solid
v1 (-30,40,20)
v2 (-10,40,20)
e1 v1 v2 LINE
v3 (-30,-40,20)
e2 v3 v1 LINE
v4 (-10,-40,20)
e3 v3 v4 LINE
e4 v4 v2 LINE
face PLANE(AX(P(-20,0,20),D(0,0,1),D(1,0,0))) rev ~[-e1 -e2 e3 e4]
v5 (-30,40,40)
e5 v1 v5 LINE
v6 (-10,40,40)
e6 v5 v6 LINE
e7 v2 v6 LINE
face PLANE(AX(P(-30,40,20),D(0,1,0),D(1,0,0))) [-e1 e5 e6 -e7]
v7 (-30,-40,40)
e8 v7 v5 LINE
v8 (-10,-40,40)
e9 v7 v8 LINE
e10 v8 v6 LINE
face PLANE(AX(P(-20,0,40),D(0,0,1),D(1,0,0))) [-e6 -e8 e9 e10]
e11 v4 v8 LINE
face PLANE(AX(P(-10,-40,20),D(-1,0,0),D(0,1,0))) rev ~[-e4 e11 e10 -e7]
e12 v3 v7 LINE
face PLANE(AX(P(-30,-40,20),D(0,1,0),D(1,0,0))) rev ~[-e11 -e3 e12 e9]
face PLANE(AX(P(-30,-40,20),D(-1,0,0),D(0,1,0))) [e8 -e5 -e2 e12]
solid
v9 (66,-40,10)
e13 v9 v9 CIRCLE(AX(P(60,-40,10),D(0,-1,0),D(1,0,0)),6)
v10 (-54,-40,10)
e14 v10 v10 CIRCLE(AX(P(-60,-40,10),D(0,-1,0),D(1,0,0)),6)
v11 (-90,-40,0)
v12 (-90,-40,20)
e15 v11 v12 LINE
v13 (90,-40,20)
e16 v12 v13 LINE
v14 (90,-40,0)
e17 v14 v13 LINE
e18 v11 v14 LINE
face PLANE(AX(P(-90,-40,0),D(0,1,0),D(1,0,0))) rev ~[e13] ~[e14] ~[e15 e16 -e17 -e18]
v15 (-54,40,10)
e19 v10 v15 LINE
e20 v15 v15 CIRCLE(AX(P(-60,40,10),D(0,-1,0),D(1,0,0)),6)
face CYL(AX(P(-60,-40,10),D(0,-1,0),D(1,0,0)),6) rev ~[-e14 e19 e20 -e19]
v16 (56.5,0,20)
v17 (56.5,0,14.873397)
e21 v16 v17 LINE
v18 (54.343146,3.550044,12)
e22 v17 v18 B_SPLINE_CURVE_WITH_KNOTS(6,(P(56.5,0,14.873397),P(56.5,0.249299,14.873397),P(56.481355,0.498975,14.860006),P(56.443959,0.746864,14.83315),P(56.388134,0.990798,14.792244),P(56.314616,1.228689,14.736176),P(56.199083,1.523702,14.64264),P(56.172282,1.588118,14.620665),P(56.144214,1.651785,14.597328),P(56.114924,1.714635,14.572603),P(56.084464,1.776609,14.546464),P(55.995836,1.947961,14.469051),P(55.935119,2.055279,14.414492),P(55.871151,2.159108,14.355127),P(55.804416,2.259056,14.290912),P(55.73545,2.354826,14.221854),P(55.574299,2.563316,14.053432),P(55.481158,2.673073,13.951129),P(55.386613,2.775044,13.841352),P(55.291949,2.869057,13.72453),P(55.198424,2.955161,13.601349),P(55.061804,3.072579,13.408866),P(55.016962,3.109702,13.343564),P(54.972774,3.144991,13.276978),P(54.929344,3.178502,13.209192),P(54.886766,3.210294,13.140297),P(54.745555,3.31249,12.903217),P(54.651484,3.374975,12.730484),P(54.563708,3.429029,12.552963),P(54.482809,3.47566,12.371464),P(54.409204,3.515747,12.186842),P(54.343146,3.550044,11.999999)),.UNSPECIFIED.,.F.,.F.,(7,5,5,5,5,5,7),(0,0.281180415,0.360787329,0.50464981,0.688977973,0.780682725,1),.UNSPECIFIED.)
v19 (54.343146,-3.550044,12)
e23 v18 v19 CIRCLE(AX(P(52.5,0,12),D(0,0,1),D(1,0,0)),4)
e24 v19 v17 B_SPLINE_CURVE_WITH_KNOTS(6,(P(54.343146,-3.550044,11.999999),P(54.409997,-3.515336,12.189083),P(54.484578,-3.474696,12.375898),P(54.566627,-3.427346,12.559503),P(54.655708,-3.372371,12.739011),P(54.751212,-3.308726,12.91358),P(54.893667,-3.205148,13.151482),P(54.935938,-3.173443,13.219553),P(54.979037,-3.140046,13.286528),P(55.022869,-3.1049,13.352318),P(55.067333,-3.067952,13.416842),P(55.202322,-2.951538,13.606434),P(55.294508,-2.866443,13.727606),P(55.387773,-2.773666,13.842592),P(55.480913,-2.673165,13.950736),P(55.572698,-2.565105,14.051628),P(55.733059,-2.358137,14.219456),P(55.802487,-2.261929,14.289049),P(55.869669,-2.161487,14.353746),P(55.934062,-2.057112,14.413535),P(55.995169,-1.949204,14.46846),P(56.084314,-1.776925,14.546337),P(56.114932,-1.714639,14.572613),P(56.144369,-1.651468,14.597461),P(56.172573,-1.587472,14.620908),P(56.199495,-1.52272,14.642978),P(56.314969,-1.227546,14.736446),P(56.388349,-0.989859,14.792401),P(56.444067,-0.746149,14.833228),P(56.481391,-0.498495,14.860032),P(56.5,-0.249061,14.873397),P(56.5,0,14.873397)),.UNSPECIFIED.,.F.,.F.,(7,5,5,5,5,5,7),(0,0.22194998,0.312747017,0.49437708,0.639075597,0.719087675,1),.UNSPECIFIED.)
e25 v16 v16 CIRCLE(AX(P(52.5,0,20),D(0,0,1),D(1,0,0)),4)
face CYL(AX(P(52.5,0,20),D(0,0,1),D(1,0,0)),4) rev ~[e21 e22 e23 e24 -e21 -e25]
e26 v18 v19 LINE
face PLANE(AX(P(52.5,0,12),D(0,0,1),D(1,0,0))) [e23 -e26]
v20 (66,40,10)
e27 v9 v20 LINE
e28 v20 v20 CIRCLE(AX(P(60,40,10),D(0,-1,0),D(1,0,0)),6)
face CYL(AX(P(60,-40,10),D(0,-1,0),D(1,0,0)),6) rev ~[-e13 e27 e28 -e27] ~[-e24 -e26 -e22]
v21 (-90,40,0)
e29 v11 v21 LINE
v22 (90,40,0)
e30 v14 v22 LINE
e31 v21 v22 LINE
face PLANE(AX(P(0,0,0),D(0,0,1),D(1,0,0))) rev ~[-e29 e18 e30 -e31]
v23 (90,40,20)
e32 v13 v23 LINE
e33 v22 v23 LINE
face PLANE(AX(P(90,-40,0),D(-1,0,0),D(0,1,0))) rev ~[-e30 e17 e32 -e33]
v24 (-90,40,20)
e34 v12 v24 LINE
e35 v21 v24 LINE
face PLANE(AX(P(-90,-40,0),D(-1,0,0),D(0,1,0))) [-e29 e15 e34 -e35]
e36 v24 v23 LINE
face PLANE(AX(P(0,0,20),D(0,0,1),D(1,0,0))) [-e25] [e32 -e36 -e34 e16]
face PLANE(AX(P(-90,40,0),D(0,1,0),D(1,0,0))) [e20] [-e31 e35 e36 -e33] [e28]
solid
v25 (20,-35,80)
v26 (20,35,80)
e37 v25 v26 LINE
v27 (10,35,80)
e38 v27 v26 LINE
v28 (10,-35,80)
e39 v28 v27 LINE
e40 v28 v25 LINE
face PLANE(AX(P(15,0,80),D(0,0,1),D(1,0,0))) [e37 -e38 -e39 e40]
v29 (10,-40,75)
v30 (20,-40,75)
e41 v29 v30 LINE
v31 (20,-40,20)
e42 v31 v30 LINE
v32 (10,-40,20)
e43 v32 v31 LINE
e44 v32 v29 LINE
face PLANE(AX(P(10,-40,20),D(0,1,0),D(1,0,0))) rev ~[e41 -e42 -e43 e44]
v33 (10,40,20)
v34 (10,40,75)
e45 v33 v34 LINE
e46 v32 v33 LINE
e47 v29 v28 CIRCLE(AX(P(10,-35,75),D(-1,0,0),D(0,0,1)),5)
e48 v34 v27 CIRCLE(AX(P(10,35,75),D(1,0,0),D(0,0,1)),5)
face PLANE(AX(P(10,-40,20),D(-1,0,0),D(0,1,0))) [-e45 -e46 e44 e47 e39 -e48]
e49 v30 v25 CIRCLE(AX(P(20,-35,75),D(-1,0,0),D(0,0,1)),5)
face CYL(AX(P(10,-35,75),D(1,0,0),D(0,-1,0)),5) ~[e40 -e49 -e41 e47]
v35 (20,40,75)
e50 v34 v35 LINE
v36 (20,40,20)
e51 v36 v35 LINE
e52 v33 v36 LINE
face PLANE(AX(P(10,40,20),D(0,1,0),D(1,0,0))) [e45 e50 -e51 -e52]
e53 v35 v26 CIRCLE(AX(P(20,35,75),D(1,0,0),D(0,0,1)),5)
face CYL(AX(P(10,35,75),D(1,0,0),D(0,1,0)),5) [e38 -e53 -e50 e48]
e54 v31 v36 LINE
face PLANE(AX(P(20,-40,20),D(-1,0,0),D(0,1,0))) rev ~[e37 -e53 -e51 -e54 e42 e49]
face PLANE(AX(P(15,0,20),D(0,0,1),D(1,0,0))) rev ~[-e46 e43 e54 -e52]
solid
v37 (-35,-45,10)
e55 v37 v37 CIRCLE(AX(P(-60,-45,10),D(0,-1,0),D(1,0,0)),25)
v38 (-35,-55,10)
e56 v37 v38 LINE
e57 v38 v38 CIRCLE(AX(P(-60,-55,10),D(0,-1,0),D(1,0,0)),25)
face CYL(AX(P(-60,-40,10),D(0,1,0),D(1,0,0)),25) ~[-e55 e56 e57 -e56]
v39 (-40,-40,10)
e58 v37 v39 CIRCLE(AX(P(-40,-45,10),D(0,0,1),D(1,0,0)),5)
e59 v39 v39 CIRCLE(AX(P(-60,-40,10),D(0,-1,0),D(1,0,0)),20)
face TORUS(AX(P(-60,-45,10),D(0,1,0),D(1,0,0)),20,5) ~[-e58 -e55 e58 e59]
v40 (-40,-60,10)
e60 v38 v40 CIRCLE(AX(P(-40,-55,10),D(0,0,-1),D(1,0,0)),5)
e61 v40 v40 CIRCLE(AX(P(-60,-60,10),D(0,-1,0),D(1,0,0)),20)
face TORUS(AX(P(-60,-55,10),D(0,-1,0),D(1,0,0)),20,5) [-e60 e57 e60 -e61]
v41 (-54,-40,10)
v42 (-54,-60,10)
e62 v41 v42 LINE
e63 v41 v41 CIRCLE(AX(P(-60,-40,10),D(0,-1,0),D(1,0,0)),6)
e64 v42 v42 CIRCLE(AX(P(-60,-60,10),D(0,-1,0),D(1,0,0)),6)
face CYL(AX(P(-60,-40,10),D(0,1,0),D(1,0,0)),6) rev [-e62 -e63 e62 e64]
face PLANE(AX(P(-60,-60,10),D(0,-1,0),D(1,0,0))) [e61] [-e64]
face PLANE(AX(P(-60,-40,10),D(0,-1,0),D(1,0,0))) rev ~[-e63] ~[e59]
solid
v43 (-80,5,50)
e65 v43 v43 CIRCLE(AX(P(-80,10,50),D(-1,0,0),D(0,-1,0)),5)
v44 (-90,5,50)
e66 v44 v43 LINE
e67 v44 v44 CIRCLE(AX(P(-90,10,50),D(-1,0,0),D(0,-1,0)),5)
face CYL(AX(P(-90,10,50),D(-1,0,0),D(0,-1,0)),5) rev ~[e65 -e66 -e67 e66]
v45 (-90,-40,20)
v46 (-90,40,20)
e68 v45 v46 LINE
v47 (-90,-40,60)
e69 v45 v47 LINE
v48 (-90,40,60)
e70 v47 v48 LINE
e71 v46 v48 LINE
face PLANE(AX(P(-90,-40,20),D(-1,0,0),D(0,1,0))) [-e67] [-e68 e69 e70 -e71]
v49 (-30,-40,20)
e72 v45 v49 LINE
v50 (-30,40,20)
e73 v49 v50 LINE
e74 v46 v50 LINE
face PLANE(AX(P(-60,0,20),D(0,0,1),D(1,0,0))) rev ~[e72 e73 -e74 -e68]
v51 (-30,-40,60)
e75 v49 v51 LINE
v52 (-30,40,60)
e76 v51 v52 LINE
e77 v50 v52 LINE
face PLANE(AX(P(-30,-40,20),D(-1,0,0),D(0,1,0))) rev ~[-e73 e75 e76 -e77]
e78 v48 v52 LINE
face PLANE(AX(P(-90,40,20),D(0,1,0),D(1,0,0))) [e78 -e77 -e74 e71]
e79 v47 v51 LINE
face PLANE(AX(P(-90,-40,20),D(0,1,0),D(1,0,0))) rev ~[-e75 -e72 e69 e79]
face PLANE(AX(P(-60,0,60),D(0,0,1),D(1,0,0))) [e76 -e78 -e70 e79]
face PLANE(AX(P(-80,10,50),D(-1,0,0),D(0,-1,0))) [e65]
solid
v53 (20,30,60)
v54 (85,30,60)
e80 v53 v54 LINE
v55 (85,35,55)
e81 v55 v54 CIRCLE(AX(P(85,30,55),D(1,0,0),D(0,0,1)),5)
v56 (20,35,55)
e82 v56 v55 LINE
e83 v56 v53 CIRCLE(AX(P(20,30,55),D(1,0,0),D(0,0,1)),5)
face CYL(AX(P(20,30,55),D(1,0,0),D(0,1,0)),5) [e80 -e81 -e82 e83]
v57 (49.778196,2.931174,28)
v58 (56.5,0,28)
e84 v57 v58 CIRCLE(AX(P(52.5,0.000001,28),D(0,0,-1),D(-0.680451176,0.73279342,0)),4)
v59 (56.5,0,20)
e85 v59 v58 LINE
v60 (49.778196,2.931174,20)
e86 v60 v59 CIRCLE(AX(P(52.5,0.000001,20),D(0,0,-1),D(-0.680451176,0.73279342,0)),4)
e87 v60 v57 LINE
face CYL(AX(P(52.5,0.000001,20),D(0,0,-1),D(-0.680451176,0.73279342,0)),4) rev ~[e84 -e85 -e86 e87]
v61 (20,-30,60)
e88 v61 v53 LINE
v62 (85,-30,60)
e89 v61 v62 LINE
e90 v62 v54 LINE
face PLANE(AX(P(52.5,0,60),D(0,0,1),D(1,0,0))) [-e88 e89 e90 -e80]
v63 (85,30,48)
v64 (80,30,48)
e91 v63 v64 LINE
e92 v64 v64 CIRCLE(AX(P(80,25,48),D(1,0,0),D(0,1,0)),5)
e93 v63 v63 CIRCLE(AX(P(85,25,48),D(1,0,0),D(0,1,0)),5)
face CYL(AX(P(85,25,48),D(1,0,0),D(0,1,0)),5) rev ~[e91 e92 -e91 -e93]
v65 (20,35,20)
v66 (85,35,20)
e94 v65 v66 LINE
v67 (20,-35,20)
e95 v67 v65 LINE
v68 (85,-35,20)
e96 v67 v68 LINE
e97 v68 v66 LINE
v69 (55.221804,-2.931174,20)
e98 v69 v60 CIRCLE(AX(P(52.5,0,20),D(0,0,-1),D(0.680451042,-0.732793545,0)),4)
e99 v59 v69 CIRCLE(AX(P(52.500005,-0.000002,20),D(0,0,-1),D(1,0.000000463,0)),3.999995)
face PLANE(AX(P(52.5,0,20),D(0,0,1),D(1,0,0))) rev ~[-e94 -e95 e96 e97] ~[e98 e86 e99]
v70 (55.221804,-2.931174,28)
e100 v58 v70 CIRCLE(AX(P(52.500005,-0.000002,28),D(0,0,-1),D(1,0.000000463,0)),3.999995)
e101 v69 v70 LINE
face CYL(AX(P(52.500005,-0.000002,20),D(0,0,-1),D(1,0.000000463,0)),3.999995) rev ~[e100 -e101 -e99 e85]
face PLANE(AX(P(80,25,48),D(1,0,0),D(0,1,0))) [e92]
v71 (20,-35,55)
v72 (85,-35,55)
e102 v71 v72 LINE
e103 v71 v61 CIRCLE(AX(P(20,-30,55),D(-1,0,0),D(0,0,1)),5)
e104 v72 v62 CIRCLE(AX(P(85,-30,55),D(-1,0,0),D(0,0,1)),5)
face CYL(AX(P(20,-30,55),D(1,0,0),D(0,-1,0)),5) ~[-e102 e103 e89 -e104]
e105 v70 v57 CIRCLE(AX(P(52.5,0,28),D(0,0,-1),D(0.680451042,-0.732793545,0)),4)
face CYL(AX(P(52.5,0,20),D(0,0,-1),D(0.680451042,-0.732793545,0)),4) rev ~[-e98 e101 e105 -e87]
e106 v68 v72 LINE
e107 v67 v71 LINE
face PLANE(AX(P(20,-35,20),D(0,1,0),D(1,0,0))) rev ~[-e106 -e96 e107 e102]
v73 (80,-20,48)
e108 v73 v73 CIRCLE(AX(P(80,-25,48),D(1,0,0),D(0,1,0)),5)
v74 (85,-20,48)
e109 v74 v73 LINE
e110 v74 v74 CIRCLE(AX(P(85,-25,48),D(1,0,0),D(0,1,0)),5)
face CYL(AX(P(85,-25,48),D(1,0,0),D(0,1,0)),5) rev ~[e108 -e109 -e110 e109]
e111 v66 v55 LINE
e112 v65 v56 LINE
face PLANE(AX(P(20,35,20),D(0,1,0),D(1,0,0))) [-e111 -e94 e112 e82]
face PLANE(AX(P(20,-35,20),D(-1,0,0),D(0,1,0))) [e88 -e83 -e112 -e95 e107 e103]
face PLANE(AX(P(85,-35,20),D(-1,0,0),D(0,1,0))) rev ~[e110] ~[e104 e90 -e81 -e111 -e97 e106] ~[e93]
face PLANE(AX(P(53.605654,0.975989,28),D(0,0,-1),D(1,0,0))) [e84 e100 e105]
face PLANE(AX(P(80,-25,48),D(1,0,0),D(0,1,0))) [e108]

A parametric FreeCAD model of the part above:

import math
import FreeCAD as App
import Part
import Sketcher

V = App.Vector
Q = App.Units.Quantity


def edges_at(feature, points):
    """Names of the edges that pass closest to the given points."""
    edges = feature.Shape.Edges
    near = lambda p: min(range(len(edges)), key=lambda i: edges[i].distToShape(Part.Vertex(*p))[0])
    return sorted({f"Edge{near(p) + 1}" for p in points})


def add_polygon(sketch, points):
    """Adds a closed chain of lines whose ends are joined by coincident constraints."""
    first, n = sketch.GeometryCount, len(points)
    for a, b in zip(points, points[1:] + points[:1]):
        sketch.addGeometry(Part.LineSegment(App.Vector(*a, 0), App.Vector(*b, 0)), False)
    for i in range(n):
        sketch.addConstraint(Sketcher.Constraint("Coincident", first + i, 2, first + (i + 1) % n, 1))

doc = App.newDocument("Part")
body = doc.addObject("PartDesign::Body", "Body")

sketch1 = body.newObject("Sketcher::SketchObject", "Sketch")
sketch1.AttachmentSupport = (doc.getObject("XY_Plane"), [""])
sketch1.MapMode = "FlatFace"
add_polygon(sketch1, [(-90, 40), (-90, -40), (90, -40), (90, 40)])
sketch1.addConstraint(Sketcher.Constraint("Vertical", 0))
sketch1.addConstraint(Sketcher.Constraint("Horizontal", 1))
sketch1.addConstraint(Sketcher.Constraint("Vertical", 2))
sketch1.addConstraint(Sketcher.Constraint("Horizontal", 3))
sketch1.addConstraint(Sketcher.Constraint("Symmetric", 0, 2, 2, 2, -1, 1))
sketch1.addConstraint(Sketcher.Constraint("DistanceX", 1, 1, 1, 2, Q("180 mm")))
sketch1.addConstraint(Sketcher.Constraint("DistanceY", 0, 2, 0, 1, Q("80 mm")))
pad1 = body.newObject("PartDesign::Pad", "Pad")
pad1.Profile = sketch1
pad1.Length = 20

sketch2 = body.newObject("Sketcher::SketchObject", "Sketch001")
sketch2.AttachmentSupport = (doc.getObject("XZ_Plane"), [""])
sketch2.MapMode = "FlatFace"
sketch2.AttachmentOffset = App.Placement(V(0, 0, 40), App.Rotation())
sketch2.addGeometry(Part.Circle(V(-60, 10, 0), V(0, 0, 1), 6), False)
sketch2.addGeometry(Part.Circle(V(60, 10, 0), V(0, 0, 1), 6), False)
sketch2.addConstraint(Sketcher.Constraint("Equal", 0, 1))
sketch2.addConstraint(Sketcher.Constraint("Symmetric", 0, 3, 1, 3, -2))
sketch2.addConstraint(Sketcher.Constraint("Diameter", 0, Q("12 mm")))
sketch2.addConstraint(Sketcher.Constraint("DistanceX", 0, 3, -1, 1, Q("60 mm")))
sketch2.addConstraint(Sketcher.Constraint("DistanceY", -1, 1, 0, 3, Q("10 mm")))
pocket1 = body.newObject("PartDesign::Pocket", "Pocket")
pocket1.Profile = sketch2
pocket1.Type = "ThroughAll"

sketch3 = body.newObject("Sketcher::SketchObject", "Sketch002")
sketch3.AttachmentSupport = (doc.getObject("XY_Plane"), [""])
sketch3.MapMode = "FlatFace"
sketch3.AttachmentOffset = App.Placement(V(0, 0, 20), App.Rotation())
sketch3.addGeometry(Part.Circle(V(52.5, 0, 0), V(0, 0, 1), 4), False)
sketch3.addConstraint(Sketcher.Constraint("PointOnObject", 0, 3, -1))
sketch3.addConstraint(Sketcher.Constraint("Diameter", 0, Q("8 mm")))
sketch3.addConstraint(Sketcher.Constraint("DistanceX", -1, 1, 0, 3, Q("52.5 mm")))
pocket2 = body.newObject("PartDesign::Pocket", "Pocket001")
pocket2.Profile = sketch3
pocket2.Length = 8
body2 = doc.addObject("PartDesign::Body", "Body001")

sketch4 = body2.newObject("Sketcher::SketchObject", "Sketch003")
sketch4.AttachmentSupport = (doc.getObject("XY_Plane001"), [""])
sketch4.MapMode = "FlatFace"
sketch4.AttachmentOffset = App.Placement(V(0, 0, 20), App.Rotation())
add_polygon(sketch4, [(-90, 40), (-90, -40), (-30, -40), (-30, 40)])
sketch4.addConstraint(Sketcher.Constraint("Vertical", 0))
sketch4.addConstraint(Sketcher.Constraint("Horizontal", 1))
sketch4.addConstraint(Sketcher.Constraint("Vertical", 2))
sketch4.addConstraint(Sketcher.Constraint("Horizontal", 3))
sketch4.addConstraint(Sketcher.Constraint("DistanceX", 1, 1, 1, 2, Q("60 mm")))
sketch4.addConstraint(Sketcher.Constraint("DistanceY", 0, 2, 0, 1, Q("80 mm")))
sketch4.addConstraint(Sketcher.Constraint("DistanceX", 0, 2, -1, 1, Q("90 mm")))
sketch4.addConstraint(Sketcher.Constraint("DistanceY", 0, 2, -1, 1, Q("40 mm")))
pad2 = body2.newObject("PartDesign::Pad", "Pad001")
pad2.Profile = sketch4
pad2.Length = 40

sketch5 = body2.newObject("Sketcher::SketchObject", "Sketch004")
sketch5.AttachmentSupport = (doc.getObject("YZ_Plane001"), [""])
sketch5.MapMode = "FlatFace"
sketch5.AttachmentOffset = App.Placement(V(0, 0, -90), App.Rotation())
sketch5.addGeometry(Part.Circle(V(10, 50, 0), V(0, 0, 1), 5), False)
sketch5.addConstraint(Sketcher.Constraint("Diameter", 0, Q("10 mm")))
sketch5.addConstraint(Sketcher.Constraint("DistanceX", -1, 1, 0, 3, Q("10 mm")))
sketch5.addConstraint(Sketcher.Constraint("DistanceY", -1, 1, 0, 3, Q("50 mm")))
pocket3 = body2.newObject("PartDesign::Pocket", "Pocket002")
pocket3.Profile = sketch5
pocket3.Length = 10
pocket3.Reversed = True
body3 = doc.addObject("PartDesign::Body", "Body002")

sketch6 = body3.newObject("Sketcher::SketchObject", "Sketch005")
sketch6.AttachmentSupport = (doc.getObject("XY_Plane002"), [""])
sketch6.MapMode = "FlatFace"
sketch6.AttachmentOffset = App.Placement(V(0, 0, 20), App.Rotation())
add_polygon(sketch6, [(-30, 40), (-30, -40), (-10, -40), (-10, 40)])
sketch6.addConstraint(Sketcher.Constraint("Vertical", 0))
sketch6.addConstraint(Sketcher.Constraint("Horizontal", 1))
sketch6.addConstraint(Sketcher.Constraint("Vertical", 2))
sketch6.addConstraint(Sketcher.Constraint("Horizontal", 3))
sketch6.addConstraint(Sketcher.Constraint("DistanceX", 1, 1, 1, 2, Q("20 mm")))
sketch6.addConstraint(Sketcher.Constraint("DistanceY", 0, 2, 0, 1, Q("80 mm")))
sketch6.addConstraint(Sketcher.Constraint("DistanceX", 0, 2, -1, 1, Q("30 mm")))
sketch6.addConstraint(Sketcher.Constraint("DistanceY", 0, 2, -1, 1, Q("40 mm")))
pad3 = body3.newObject("PartDesign::Pad", "Pad002")
pad3.Profile = sketch6
pad3.Length = 20
body4 = doc.addObject("PartDesign::Body", "Body003")

sketch7 = body4.newObject("Sketcher::SketchObject", "Sketch006")
sketch7.AttachmentSupport = (doc.getObject("XY_Plane003"), [""])
sketch7.MapMode = "FlatFace"
sketch7.AttachmentOffset = App.Placement(V(0, 0, 20), App.Rotation())
add_polygon(sketch7, [(20, 35), (20, -35), (85, -35), (85, 35)])
sketch7.addConstraint(Sketcher.Constraint("Vertical", 0))
sketch7.addConstraint(Sketcher.Constraint("Horizontal", 1))
sketch7.addConstraint(Sketcher.Constraint("Vertical", 2))
sketch7.addConstraint(Sketcher.Constraint("Horizontal", 3))
sketch7.addConstraint(Sketcher.Constraint("DistanceX", 1, 1, 1, 2, Q("65 mm")))
sketch7.addConstraint(Sketcher.Constraint("DistanceY", 0, 2, 0, 1, Q("70 mm")))
sketch7.addConstraint(Sketcher.Constraint("DistanceX", -1, 1, 0, 2, Q("20 mm")))
sketch7.addConstraint(Sketcher.Constraint("DistanceY", 0, 2, -1, 1, Q("35 mm")))
pad4 = body4.newObject("PartDesign::Pad", "Pad003")
pad4.Profile = sketch7
pad4.Length = 40

sketch8 = body4.newObject("Sketcher::SketchObject", "Sketch007")
sketch8.AttachmentSupport = (doc.getObject("YZ_Plane003"), [""])
sketch8.MapMode = "FlatFace"
sketch8.AttachmentOffset = App.Placement(V(0, 0, 85), App.Rotation())
sketch8.addGeometry(Part.Circle(V(-25, 48, 0), V(0, 0, 1), 5), False)
sketch8.addGeometry(Part.Circle(V(25, 48, 0), V(0, 0, 1), 5), False)
sketch8.addConstraint(Sketcher.Constraint("Equal", 0, 1))
sketch8.addConstraint(Sketcher.Constraint("Symmetric", 0, 3, 1, 3, -2))
sketch8.addConstraint(Sketcher.Constraint("Diameter", 0, Q("10 mm")))
sketch8.addConstraint(Sketcher.Constraint("DistanceX", 0, 3, -1, 1, Q("25 mm")))
sketch8.addConstraint(Sketcher.Constraint("DistanceY", -1, 1, 0, 3, Q("48 mm")))
pocket4 = body4.newObject("PartDesign::Pocket", "Pocket003")
pocket4.Profile = sketch8
pocket4.Length = 5
doc.recompute()

fillet = body4.newObject("PartDesign::Fillet", "Fillet")
fillet.Base = (pocket4, edges_at(pocket4, [(52.5, -35, 60), (52.5, 35, 60)]))
fillet.Radius = 5

sketch9 = body4.newObject("Sketcher::SketchObject", "Sketch008")
sketch9.AttachmentSupport = (doc.getObject("XY_Plane003"), [""])
sketch9.MapMode = "FlatFace"
sketch9.AttachmentOffset = App.Placement(V(0, 0, 20), App.Rotation())
sketch9.addGeometry(Part.ArcOfCircle(Part.Circle(V(52.5, 0, 0), V(0, 0, 1), 4), math.radians(-47), math.radians(0)), False)
sketch9.addGeometry(Part.ArcOfCircle(Part.Circle(V(52.5, 0, 0), V(0, 0, 1), 4), math.radians(133), math.radians(313)), False)
sketch9.addGeometry(Part.ArcOfCircle(Part.Circle(V(52.5, 0, 0), V(0, 0, 1), 4), math.radians(0), math.radians(133)), False)
sketch9.addConstraint(Sketcher.Constraint("Tangent", 0, 1, 1, 2))
sketch9.addConstraint(Sketcher.Constraint("Tangent", 1, 1, 2, 2))
sketch9.addConstraint(Sketcher.Constraint("Tangent", 2, 1, 0, 2))
sketch9.addConstraint(Sketcher.Constraint("PointOnObject", 0, 3, -1))
sketch9.addConstraint(Sketcher.Constraint("PointOnObject", 2, 1, -1))
sketch9.addConstraint(Sketcher.Constraint("Radius", 1, Q("4 mm")))
sketch9.addConstraint(Sketcher.Constraint("DistanceX", -1, 1, 1, 3, Q("52.5 mm")))
sketch9.addConstraint(Sketcher.Constraint("DistanceX", 0, 3, 0, 1, Q("2.721799 mm")))
sketch9.addConstraint(Sketcher.Constraint("DistanceX", 1, 1, 0, 3, Q("2.721809 mm")))
pocket5 = body4.newObject("PartDesign::Pocket", "Pocket004")
pocket5.Profile = sketch9
pocket5.Length = 8
pocket5.Reversed = True
body5 = doc.addObject("PartDesign::Body", "Body004")

sketch10 = body5.newObject("Sketcher::SketchObject", "Sketch009")
sketch10.AttachmentSupport = (doc.getObject("XY_Plane004"), [""])
sketch10.MapMode = "FlatFace"
sketch10.AttachmentOffset = App.Placement(V(0, 0, 20), App.Rotation())
add_polygon(sketch10, [(10, 40), (10, -40), (20, -40), (20, 40)])
sketch10.addConstraint(Sketcher.Constraint("Vertical", 0))
sketch10.addConstraint(Sketcher.Constraint("Horizontal", 1))
sketch10.addConstraint(Sketcher.Constraint("Vertical", 2))
sketch10.addConstraint(Sketcher.Constraint("Horizontal", 3))
sketch10.addConstraint(Sketcher.Constraint("DistanceX", 1, 1, 1, 2, Q("10 mm")))
sketch10.addConstraint(Sketcher.Constraint("DistanceY", 0, 2, 0, 1, Q("80 mm")))
sketch10.addConstraint(Sketcher.Constraint("DistanceX", -1, 1, 0, 2, Q("10 mm")))
sketch10.addConstraint(Sketcher.Constraint("DistanceY", 0, 2, -1, 1, Q("40 mm")))
pad5 = body5.newObject("PartDesign::Pad", "Pad004")
pad5.Profile = sketch10
pad5.Length = 60
doc.recompute()

fillet2 = body5.newObject("PartDesign::Fillet", "Fillet001")
fillet2.Base = (pad5, edges_at(pad5, [(15, -40, 80), (15, 40, 80)]))
fillet2.Radius = 5
body6 = doc.addObject("PartDesign::Body", "Body005")

sketch11 = body6.newObject("Sketcher::SketchObject", "Sketch010")
sketch11.AttachmentSupport = (doc.getObject("XZ_Plane005"), [""])
sketch11.MapMode = "FlatFace"
sketch11.AttachmentOffset = App.Placement(V(0, 0, 40), App.Rotation())
sketch11.addGeometry(Part.Circle(V(-60, 10, 0), V(0, 0, 1), 25), False)
sketch11.addGeometry(Part.Circle(V(-60, 10, 0), V(0, 0, 1), 6), False)
sketch11.addConstraint(Sketcher.Constraint("Coincident", 1, 3, 0, 3))
sketch11.addConstraint(Sketcher.Constraint("Diameter", 0, Q("50 mm")))
sketch11.addConstraint(Sketcher.Constraint("Diameter", 1, Q("12 mm")))
sketch11.addConstraint(Sketcher.Constraint("DistanceX", 0, 3, -1, 1, Q("60 mm")))
sketch11.addConstraint(Sketcher.Constraint("DistanceY", -1, 1, 0, 3, Q("10 mm")))
pad6 = body6.newObject("PartDesign::Pad", "Pad005")
pad6.Profile = sketch11
pad6.Length = 20
doc.recompute()

fillet3 = body6.newObject("PartDesign::Fillet", "Fillet002")
fillet3.Base = (pad6, edges_at(pad6, [(-35, -50, 10), (-85, -40, 10), (-85, -60, 10)]))
fillet3.Radius = 5

doc.recompute()
